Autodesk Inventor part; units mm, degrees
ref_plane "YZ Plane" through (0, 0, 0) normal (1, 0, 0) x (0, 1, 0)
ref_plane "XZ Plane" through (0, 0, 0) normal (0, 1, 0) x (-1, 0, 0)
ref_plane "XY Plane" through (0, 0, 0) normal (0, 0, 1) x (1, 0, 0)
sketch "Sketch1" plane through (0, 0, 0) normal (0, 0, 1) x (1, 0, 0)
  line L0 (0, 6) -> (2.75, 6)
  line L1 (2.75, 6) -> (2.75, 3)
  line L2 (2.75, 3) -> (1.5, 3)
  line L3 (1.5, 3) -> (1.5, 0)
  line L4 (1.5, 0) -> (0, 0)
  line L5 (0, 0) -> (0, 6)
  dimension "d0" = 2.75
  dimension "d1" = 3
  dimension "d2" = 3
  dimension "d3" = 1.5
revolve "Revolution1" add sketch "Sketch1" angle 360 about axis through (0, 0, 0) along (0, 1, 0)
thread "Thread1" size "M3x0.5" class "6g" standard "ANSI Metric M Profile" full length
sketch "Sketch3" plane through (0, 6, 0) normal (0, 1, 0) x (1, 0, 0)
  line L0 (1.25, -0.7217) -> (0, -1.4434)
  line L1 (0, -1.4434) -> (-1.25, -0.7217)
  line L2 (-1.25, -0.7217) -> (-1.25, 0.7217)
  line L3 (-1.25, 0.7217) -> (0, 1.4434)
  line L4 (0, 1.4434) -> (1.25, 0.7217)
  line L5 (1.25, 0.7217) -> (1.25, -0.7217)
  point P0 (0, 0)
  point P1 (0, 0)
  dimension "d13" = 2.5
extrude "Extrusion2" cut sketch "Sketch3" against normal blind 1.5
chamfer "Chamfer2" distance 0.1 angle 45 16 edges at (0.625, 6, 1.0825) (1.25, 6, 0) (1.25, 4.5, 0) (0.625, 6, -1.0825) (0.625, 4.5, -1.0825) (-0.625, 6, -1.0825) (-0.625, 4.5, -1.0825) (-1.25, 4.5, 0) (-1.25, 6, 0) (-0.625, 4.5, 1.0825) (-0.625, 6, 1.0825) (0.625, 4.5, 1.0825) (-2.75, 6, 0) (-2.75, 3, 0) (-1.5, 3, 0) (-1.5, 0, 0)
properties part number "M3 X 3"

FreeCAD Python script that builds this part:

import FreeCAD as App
import Part
import Sketcher

V = App.Vector
Q = App.Units.Quantity


def edges_at(feature, points):
    """Names of the edges that pass closest to the given points."""
    edges = feature.Shape.Edges
    near = lambda p: min(range(len(edges)), key=lambda i: edges[i].distToShape(Part.Vertex(*p))[0])
    return sorted({f"Edge{near(p) + 1}" for p in points})


def add_polygon(sketch, points):
    """Adds a closed chain of lines whose ends are joined by coincident constraints."""
    first, n = sketch.GeometryCount, len(points)
    for a, b in zip(points, points[1:] + points[:1]):
        sketch.addGeometry(Part.LineSegment(App.Vector(*a, 0), App.Vector(*b, 0)), False)
    for i in range(n):
        sketch.addConstraint(Sketcher.Constraint("Coincident", first + i, 2, first + (i + 1) % n, 1))

doc = App.newDocument("Part")
params = doc.addObject("Spreadsheet::Sheet", "Params")
for row, (alias, value) in enumerate([
    ("sketch1_height", "3 mm"),
    ("sketch1_width", "1.5 mm"),
    ("sketch1_width2", "2.75 mm"),
    ("revolution_angle", "360 deg"),
    ("pocket1_length", "1.5 mm"),
    ("chamfer_size", "0.1 mm"),
], start=1):
    params.set(f"A{row}", alias)
    params.set(f"B{row}", "=" + value)
    params.setAlias(f"B{row}", alias)

body = doc.addObject("PartDesign::Body", "Body")

sketch1 = body.newObject("Sketcher::SketchObject", "Sketch")
sketch1.AttachmentSupport = (doc.getObject("XY_Plane"), [""])
sketch1.MapMode = "FlatFace"
add_polygon(sketch1, [(2.8, 6), (0, 6), (0, 0), (1.5, 0), (1.5, 3), (2.8, 3)])
sketch1.addConstraint(Sketcher.Constraint("Horizontal", 0))
sketch1.addConstraint(Sketcher.Constraint("Vertical", 1))
sketch1.addConstraint(Sketcher.Constraint("Horizontal", 2))
sketch1.addConstraint(Sketcher.Constraint("Vertical", 3))
sketch1.addConstraint(Sketcher.Constraint("Horizontal", 4))
sketch1.addConstraint(Sketcher.Constraint("Vertical", 5))
sketch1.addConstraint(Sketcher.Constraint("Coincident", 1, 2, -1, 1))
sketch1.addConstraint(Sketcher.Constraint("Equal", 3, 5))
sketch1.addConstraint(Sketcher.Constraint("DistanceY", 3, 1, 3, 2, 3.0))
sketch1.addConstraint(Sketcher.Constraint("DistanceX", 2, 1, 2, 2, 1.5))
sketch1.addConstraint(Sketcher.Constraint("DistanceX", 0, 2, 0, 1, 2.75))
sketch1.setExpression("Constraints[14]", "Params.sketch1_height")
sketch1.setExpression("Constraints[15]", "Params.sketch1_width")
sketch1.setExpression("Constraints[16]", "Params.sketch1_width2")
revolution = body.newObject("PartDesign::Revolution", "Revolution")
revolution.Profile = sketch1
revolution.ReferenceAxis = (sketch1, ["V_Axis"])
revolution.setExpression("Angle", "Params.revolution_angle")

sketch2 = body.newObject("Sketcher::SketchObject", "Sketch001")
sketch2.AttachmentSupport = (doc.getObject("XZ_Plane"), [""])
sketch2.MapMode = "FlatFace"
sketch2.AttachmentOffset = App.Placement(V(0, 0, -6), App.Rotation())
add_polygon(sketch2, [(0, 1.4), (1.2, 0.7), (1.2, -0.7), (0, -1.4), (-1.2, -0.7), (-1.2, 0.7)])
sketch2.addConstraint(Sketcher.Constraint("Vertical", 1))
sketch2.addConstraint(Sketcher.Constraint("Vertical", 4))
sketch2.addConstraint(Sketcher.Constraint("Symmetric", 0, 2, 3, 2, -1, 1))
sketch2.addConstraint(Sketcher.Constraint("Symmetric", 2, 2, 5, 2, -1, 1))
sketch2.addConstraint(Sketcher.Constraint("PointOnObject", 2, 2, -2))
sketch2.addConstraint(Sketcher.Constraint("Parallel", 2, 5))
sketch2.addConstraint(Sketcher.Constraint("Horizontal", 1, 2, 3, 2))
sketch2.addConstraint(Sketcher.Constraint("DistanceX", 3, 2, 1, 2, 2.5))
sketch2.addConstraint(Sketcher.Constraint("Angle", 0, Q("-30.0004 deg")))
sketch2.addConstraint(Sketcher.Constraint("DistanceY", 1, 2, 1, 1, 1.4434))
pocket1 = body.newObject("PartDesign::Pocket", "Pocket")
pocket1.Profile = sketch2
pocket1.setExpression("Length", "Params.pocket1_length")
pocket1.Reversed = True
doc.recompute()

chamfer = body.newObject("PartDesign::Chamfer", "Chamfer")
chamfer.Base = (pocket1, edges_at(pocket1, [
    (0.625, 6, 1.083),
    (1.25, 6, 0),
    (1.25, 4.5, 0),
    (0.625, 6, -1.083),
    (0.625, 4.5, -1.083),
    (-0.625, 6, -1.083),
    (-0.625, 4.5, -1.083),
    (-1.25, 4.5, 0),
    (-1.25, 6, 0),
    (-0.625, 4.5, 1.083),
    (-0.625, 6, 1.083),
    (0.625, 4.5, 1.083),
    (-2.75, 6, 0),
    (-2.75, 3, 0),
    (-1.5, 3, 0),
    (-1.5, 0, 0),
]))
chamfer.setExpression("Size", "Params.chamfer_size")

doc.recompute()
